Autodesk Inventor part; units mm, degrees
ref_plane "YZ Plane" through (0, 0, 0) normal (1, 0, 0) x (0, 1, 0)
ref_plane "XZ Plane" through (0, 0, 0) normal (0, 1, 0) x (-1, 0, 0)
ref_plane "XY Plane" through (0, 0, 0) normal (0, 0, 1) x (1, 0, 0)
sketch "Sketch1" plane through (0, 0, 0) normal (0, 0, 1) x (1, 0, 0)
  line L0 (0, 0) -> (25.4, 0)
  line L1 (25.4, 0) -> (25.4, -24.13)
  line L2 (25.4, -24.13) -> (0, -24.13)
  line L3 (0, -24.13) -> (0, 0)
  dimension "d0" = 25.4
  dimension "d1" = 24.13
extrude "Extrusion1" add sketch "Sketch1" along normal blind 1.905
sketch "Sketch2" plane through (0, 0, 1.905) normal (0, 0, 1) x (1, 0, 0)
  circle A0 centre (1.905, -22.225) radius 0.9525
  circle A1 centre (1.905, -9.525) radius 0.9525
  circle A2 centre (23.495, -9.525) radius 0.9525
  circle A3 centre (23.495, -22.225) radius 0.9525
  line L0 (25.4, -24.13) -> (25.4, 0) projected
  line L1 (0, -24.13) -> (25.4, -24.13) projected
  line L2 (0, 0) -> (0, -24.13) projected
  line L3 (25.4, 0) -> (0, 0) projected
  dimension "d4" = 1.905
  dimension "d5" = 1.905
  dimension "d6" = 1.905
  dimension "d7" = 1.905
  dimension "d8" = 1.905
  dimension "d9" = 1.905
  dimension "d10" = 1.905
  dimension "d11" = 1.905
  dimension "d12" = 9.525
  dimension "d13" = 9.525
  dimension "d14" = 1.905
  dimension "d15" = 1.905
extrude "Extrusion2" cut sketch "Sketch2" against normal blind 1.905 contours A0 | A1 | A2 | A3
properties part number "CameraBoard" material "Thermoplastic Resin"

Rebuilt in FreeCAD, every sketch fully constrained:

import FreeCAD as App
import Part
import Sketcher
Q = App.Units.Quantity

doc = App.newDocument("Part")
params = doc.addObject("Spreadsheet::Sheet", "Params")
for row, (alias, value) in enumerate([
    ("sketch1_width", "1 in"),
    ("sketch1_height", "0.95 in"),
    ("pad1_length", "0.075 in"),
    ("sketch2_diameter", "0.075 in"),
    ("pocket1_length", "0.075 in"),
], start=1):
    params.set(f"A{row}", alias)
    params.set(f"B{row}", "=" + value)
    params.setAlias(f"B{row}", alias)

body = doc.addObject("PartDesign::Body", "Body")

sketch1 = body.newObject("Sketcher::SketchObject", "Sketch")
sketch1.AttachmentSupport = (doc.getObject("XY_Plane"), [""])
sketch1.MapMode = "FlatFace"
sketch1.addGeometry([
    Part.LineSegment(App.Vector(25, 0, 0), App.Vector(0, 0, 0)),
    Part.LineSegment(App.Vector(0, 0, 0), App.Vector(0, -24, 0)),
    Part.LineSegment(App.Vector(0, -24, 0), App.Vector(25, -24, 0)),
    Part.LineSegment(App.Vector(25, -24, 0), App.Vector(25, 0, 0)),
], False)
sketch1.addConstraint([
    Sketcher.Constraint("Coincident", 0, 2, 1, 1),
    Sketcher.Constraint("Coincident", 1, 2, 2, 1),
    Sketcher.Constraint("Coincident", 2, 2, 3, 1),
    Sketcher.Constraint("Coincident", 3, 2, 0, 1),
    Sketcher.Constraint("Horizontal", 0),
    Sketcher.Constraint("Vertical", 1),
    Sketcher.Constraint("Horizontal", 2),
    Sketcher.Constraint("Vertical", 3),
    Sketcher.Constraint("Coincident", 0, 2, -1, 1),
    Sketcher.Constraint("DistanceX", 0, 2, 0, 1, Q("1 in")),
    Sketcher.Constraint("DistanceY", 1, 2, 1, 1, Q("0.95 in")),
])
sketch1.setExpression("Constraints[9]", "Params.sketch1_width")
sketch1.setExpression("Constraints[10]", "Params.sketch1_height")
pad1 = body.newObject("PartDesign::Pad", "Pad")
pad1.Profile = sketch1
pad1.setExpression("Length", "Params.pad1_length")

sketch2 = body.newObject("Sketcher::SketchObject", "Sketch001")
sketch2.AttachmentSupport = (doc.getObject("XY_Plane"), [""])
sketch2.MapMode = "FlatFace"
sketch2.AttachmentOffset = App.Placement(App.Vector(0, 0, 0.075 * 25.4), App.Rotation())
sketch2.addGeometry([
    Part.Circle(App.Vector(1.9, -22.2, 0), App.Vector(0, 0, 1), 1),
    Part.Circle(App.Vector(1.9, -9.5, 0), App.Vector(0, 0, 1), 1),
    Part.Circle(App.Vector(23.5, -9.5, 0), App.Vector(0, 0, 1), 1),
    Part.Circle(App.Vector(23.5, -22.2, 0), App.Vector(0, 0, 1), 1),
], False)
sketch2.addConstraint([
    Sketcher.Constraint("Equal", 0, 1),
    Sketcher.Constraint("Equal", 1, 2),
    Sketcher.Constraint("Equal", 2, 3),
    Sketcher.Constraint("Horizontal", 1, 3, 2, 3),
    Sketcher.Constraint("Horizontal", 0, 3, 3, 3),
    Sketcher.Constraint("Vertical", 0, 3, 1, 3),
    Sketcher.Constraint("Vertical", 2, 3, 3, 3),
    Sketcher.Constraint("Diameter", 0, Q("0.075 in")),
    Sketcher.Constraint("DistanceX", -1, 1, 0, 3, Q("0.075 in")),
    Sketcher.Constraint("DistanceY", 1, 3, -1, 1, Q("0.375 in")),
    Sketcher.Constraint("DistanceY", 0, 3, 1, 3, Q("0.5 in")),
    Sketcher.Constraint("DistanceX", 1, 3, 2, 3, Q("0.85 in")),
])
sketch2.setExpression("Constraints[7]", "Params.sketch2_diameter")
pocket1 = body.newObject("PartDesign::Pocket", "Pocket")
pocket1.Profile = sketch2
pocket1.setExpression("Length", "Params.pocket1_length")

doc.recompute()
